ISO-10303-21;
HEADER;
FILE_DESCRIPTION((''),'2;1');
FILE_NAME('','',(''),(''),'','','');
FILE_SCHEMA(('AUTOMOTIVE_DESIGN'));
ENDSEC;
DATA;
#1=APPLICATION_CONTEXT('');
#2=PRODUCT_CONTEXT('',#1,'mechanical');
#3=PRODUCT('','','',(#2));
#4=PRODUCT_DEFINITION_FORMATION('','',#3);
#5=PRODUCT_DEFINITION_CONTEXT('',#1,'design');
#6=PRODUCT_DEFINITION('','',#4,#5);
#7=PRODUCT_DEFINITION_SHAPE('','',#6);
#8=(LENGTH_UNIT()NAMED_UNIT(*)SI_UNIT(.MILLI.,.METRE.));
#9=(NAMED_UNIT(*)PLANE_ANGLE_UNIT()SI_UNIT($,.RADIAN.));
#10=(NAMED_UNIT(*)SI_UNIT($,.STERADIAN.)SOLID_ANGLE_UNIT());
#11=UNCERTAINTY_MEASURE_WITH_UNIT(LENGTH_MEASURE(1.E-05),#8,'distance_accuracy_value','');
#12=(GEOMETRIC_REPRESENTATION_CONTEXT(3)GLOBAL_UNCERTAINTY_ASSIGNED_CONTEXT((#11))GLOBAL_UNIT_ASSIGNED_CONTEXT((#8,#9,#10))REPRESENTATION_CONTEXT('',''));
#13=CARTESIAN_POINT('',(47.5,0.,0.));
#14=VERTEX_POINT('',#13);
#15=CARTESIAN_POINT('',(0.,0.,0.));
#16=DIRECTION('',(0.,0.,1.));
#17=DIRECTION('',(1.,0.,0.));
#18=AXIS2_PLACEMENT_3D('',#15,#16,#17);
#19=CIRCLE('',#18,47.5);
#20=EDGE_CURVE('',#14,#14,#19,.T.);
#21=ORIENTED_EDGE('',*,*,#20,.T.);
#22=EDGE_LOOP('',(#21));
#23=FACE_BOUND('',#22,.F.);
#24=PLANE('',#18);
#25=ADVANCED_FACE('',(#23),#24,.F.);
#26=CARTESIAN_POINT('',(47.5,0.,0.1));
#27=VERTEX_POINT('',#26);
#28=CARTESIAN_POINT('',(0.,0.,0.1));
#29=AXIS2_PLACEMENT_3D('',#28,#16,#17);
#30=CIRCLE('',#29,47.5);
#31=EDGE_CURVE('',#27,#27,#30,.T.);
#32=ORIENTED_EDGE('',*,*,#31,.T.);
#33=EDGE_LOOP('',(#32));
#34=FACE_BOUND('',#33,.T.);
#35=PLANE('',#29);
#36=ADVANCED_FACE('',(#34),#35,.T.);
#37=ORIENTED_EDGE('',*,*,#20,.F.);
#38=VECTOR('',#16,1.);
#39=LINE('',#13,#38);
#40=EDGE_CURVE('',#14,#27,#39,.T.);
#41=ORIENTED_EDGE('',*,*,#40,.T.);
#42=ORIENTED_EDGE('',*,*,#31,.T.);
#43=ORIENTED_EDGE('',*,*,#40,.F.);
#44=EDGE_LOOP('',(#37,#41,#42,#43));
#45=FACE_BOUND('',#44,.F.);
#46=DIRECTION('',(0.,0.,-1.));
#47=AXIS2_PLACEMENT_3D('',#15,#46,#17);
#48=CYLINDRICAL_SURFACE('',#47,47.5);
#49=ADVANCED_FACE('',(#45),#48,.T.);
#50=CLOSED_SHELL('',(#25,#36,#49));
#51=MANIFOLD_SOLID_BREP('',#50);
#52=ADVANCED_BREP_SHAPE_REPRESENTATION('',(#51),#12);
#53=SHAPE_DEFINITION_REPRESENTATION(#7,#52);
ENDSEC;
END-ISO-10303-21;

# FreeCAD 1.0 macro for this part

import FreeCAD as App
import Part
import Sketcher
Q = App.Units.Quantity

doc = App.newDocument("Part")
params = doc.addObject("Spreadsheet::Sheet", "Params")
for row, (alias, value) in enumerate([
    ("sketch1_diameter", "95 mm"),
    ("pad1_length", "0.1 mm"),
], start=1):
    params.set(f"A{row}", alias)
    params.set(f"B{row}", "=" + value)
    params.setAlias(f"B{row}", alias)

body = doc.addObject("PartDesign::Body", "Body")

sketch1 = body.newObject("Sketcher::SketchObject", "Sketch")
sketch1.AttachmentSupport = (doc.getObject("XY_Plane"), [""])
sketch1.MapMode = "FlatFace"
sketch1.addGeometry(Part.Circle(App.Vector(0, 0, 0), App.Vector(0, 0, 1), 48), False)
sketch1.addConstraint(Sketcher.Constraint("Coincident", 0, 3, -1, 1))
sketch1.addConstraint(Sketcher.Constraint("Diameter", 0, Q("95 mm")))
sketch1.setExpression("Constraints[1]", "Params.sketch1_diameter")
pad1 = body.newObject("PartDesign::Pad", "Pad")
pad1.Profile = sketch1
pad1.setExpression("Length", "Params.pad1_length")

doc.recompute()
